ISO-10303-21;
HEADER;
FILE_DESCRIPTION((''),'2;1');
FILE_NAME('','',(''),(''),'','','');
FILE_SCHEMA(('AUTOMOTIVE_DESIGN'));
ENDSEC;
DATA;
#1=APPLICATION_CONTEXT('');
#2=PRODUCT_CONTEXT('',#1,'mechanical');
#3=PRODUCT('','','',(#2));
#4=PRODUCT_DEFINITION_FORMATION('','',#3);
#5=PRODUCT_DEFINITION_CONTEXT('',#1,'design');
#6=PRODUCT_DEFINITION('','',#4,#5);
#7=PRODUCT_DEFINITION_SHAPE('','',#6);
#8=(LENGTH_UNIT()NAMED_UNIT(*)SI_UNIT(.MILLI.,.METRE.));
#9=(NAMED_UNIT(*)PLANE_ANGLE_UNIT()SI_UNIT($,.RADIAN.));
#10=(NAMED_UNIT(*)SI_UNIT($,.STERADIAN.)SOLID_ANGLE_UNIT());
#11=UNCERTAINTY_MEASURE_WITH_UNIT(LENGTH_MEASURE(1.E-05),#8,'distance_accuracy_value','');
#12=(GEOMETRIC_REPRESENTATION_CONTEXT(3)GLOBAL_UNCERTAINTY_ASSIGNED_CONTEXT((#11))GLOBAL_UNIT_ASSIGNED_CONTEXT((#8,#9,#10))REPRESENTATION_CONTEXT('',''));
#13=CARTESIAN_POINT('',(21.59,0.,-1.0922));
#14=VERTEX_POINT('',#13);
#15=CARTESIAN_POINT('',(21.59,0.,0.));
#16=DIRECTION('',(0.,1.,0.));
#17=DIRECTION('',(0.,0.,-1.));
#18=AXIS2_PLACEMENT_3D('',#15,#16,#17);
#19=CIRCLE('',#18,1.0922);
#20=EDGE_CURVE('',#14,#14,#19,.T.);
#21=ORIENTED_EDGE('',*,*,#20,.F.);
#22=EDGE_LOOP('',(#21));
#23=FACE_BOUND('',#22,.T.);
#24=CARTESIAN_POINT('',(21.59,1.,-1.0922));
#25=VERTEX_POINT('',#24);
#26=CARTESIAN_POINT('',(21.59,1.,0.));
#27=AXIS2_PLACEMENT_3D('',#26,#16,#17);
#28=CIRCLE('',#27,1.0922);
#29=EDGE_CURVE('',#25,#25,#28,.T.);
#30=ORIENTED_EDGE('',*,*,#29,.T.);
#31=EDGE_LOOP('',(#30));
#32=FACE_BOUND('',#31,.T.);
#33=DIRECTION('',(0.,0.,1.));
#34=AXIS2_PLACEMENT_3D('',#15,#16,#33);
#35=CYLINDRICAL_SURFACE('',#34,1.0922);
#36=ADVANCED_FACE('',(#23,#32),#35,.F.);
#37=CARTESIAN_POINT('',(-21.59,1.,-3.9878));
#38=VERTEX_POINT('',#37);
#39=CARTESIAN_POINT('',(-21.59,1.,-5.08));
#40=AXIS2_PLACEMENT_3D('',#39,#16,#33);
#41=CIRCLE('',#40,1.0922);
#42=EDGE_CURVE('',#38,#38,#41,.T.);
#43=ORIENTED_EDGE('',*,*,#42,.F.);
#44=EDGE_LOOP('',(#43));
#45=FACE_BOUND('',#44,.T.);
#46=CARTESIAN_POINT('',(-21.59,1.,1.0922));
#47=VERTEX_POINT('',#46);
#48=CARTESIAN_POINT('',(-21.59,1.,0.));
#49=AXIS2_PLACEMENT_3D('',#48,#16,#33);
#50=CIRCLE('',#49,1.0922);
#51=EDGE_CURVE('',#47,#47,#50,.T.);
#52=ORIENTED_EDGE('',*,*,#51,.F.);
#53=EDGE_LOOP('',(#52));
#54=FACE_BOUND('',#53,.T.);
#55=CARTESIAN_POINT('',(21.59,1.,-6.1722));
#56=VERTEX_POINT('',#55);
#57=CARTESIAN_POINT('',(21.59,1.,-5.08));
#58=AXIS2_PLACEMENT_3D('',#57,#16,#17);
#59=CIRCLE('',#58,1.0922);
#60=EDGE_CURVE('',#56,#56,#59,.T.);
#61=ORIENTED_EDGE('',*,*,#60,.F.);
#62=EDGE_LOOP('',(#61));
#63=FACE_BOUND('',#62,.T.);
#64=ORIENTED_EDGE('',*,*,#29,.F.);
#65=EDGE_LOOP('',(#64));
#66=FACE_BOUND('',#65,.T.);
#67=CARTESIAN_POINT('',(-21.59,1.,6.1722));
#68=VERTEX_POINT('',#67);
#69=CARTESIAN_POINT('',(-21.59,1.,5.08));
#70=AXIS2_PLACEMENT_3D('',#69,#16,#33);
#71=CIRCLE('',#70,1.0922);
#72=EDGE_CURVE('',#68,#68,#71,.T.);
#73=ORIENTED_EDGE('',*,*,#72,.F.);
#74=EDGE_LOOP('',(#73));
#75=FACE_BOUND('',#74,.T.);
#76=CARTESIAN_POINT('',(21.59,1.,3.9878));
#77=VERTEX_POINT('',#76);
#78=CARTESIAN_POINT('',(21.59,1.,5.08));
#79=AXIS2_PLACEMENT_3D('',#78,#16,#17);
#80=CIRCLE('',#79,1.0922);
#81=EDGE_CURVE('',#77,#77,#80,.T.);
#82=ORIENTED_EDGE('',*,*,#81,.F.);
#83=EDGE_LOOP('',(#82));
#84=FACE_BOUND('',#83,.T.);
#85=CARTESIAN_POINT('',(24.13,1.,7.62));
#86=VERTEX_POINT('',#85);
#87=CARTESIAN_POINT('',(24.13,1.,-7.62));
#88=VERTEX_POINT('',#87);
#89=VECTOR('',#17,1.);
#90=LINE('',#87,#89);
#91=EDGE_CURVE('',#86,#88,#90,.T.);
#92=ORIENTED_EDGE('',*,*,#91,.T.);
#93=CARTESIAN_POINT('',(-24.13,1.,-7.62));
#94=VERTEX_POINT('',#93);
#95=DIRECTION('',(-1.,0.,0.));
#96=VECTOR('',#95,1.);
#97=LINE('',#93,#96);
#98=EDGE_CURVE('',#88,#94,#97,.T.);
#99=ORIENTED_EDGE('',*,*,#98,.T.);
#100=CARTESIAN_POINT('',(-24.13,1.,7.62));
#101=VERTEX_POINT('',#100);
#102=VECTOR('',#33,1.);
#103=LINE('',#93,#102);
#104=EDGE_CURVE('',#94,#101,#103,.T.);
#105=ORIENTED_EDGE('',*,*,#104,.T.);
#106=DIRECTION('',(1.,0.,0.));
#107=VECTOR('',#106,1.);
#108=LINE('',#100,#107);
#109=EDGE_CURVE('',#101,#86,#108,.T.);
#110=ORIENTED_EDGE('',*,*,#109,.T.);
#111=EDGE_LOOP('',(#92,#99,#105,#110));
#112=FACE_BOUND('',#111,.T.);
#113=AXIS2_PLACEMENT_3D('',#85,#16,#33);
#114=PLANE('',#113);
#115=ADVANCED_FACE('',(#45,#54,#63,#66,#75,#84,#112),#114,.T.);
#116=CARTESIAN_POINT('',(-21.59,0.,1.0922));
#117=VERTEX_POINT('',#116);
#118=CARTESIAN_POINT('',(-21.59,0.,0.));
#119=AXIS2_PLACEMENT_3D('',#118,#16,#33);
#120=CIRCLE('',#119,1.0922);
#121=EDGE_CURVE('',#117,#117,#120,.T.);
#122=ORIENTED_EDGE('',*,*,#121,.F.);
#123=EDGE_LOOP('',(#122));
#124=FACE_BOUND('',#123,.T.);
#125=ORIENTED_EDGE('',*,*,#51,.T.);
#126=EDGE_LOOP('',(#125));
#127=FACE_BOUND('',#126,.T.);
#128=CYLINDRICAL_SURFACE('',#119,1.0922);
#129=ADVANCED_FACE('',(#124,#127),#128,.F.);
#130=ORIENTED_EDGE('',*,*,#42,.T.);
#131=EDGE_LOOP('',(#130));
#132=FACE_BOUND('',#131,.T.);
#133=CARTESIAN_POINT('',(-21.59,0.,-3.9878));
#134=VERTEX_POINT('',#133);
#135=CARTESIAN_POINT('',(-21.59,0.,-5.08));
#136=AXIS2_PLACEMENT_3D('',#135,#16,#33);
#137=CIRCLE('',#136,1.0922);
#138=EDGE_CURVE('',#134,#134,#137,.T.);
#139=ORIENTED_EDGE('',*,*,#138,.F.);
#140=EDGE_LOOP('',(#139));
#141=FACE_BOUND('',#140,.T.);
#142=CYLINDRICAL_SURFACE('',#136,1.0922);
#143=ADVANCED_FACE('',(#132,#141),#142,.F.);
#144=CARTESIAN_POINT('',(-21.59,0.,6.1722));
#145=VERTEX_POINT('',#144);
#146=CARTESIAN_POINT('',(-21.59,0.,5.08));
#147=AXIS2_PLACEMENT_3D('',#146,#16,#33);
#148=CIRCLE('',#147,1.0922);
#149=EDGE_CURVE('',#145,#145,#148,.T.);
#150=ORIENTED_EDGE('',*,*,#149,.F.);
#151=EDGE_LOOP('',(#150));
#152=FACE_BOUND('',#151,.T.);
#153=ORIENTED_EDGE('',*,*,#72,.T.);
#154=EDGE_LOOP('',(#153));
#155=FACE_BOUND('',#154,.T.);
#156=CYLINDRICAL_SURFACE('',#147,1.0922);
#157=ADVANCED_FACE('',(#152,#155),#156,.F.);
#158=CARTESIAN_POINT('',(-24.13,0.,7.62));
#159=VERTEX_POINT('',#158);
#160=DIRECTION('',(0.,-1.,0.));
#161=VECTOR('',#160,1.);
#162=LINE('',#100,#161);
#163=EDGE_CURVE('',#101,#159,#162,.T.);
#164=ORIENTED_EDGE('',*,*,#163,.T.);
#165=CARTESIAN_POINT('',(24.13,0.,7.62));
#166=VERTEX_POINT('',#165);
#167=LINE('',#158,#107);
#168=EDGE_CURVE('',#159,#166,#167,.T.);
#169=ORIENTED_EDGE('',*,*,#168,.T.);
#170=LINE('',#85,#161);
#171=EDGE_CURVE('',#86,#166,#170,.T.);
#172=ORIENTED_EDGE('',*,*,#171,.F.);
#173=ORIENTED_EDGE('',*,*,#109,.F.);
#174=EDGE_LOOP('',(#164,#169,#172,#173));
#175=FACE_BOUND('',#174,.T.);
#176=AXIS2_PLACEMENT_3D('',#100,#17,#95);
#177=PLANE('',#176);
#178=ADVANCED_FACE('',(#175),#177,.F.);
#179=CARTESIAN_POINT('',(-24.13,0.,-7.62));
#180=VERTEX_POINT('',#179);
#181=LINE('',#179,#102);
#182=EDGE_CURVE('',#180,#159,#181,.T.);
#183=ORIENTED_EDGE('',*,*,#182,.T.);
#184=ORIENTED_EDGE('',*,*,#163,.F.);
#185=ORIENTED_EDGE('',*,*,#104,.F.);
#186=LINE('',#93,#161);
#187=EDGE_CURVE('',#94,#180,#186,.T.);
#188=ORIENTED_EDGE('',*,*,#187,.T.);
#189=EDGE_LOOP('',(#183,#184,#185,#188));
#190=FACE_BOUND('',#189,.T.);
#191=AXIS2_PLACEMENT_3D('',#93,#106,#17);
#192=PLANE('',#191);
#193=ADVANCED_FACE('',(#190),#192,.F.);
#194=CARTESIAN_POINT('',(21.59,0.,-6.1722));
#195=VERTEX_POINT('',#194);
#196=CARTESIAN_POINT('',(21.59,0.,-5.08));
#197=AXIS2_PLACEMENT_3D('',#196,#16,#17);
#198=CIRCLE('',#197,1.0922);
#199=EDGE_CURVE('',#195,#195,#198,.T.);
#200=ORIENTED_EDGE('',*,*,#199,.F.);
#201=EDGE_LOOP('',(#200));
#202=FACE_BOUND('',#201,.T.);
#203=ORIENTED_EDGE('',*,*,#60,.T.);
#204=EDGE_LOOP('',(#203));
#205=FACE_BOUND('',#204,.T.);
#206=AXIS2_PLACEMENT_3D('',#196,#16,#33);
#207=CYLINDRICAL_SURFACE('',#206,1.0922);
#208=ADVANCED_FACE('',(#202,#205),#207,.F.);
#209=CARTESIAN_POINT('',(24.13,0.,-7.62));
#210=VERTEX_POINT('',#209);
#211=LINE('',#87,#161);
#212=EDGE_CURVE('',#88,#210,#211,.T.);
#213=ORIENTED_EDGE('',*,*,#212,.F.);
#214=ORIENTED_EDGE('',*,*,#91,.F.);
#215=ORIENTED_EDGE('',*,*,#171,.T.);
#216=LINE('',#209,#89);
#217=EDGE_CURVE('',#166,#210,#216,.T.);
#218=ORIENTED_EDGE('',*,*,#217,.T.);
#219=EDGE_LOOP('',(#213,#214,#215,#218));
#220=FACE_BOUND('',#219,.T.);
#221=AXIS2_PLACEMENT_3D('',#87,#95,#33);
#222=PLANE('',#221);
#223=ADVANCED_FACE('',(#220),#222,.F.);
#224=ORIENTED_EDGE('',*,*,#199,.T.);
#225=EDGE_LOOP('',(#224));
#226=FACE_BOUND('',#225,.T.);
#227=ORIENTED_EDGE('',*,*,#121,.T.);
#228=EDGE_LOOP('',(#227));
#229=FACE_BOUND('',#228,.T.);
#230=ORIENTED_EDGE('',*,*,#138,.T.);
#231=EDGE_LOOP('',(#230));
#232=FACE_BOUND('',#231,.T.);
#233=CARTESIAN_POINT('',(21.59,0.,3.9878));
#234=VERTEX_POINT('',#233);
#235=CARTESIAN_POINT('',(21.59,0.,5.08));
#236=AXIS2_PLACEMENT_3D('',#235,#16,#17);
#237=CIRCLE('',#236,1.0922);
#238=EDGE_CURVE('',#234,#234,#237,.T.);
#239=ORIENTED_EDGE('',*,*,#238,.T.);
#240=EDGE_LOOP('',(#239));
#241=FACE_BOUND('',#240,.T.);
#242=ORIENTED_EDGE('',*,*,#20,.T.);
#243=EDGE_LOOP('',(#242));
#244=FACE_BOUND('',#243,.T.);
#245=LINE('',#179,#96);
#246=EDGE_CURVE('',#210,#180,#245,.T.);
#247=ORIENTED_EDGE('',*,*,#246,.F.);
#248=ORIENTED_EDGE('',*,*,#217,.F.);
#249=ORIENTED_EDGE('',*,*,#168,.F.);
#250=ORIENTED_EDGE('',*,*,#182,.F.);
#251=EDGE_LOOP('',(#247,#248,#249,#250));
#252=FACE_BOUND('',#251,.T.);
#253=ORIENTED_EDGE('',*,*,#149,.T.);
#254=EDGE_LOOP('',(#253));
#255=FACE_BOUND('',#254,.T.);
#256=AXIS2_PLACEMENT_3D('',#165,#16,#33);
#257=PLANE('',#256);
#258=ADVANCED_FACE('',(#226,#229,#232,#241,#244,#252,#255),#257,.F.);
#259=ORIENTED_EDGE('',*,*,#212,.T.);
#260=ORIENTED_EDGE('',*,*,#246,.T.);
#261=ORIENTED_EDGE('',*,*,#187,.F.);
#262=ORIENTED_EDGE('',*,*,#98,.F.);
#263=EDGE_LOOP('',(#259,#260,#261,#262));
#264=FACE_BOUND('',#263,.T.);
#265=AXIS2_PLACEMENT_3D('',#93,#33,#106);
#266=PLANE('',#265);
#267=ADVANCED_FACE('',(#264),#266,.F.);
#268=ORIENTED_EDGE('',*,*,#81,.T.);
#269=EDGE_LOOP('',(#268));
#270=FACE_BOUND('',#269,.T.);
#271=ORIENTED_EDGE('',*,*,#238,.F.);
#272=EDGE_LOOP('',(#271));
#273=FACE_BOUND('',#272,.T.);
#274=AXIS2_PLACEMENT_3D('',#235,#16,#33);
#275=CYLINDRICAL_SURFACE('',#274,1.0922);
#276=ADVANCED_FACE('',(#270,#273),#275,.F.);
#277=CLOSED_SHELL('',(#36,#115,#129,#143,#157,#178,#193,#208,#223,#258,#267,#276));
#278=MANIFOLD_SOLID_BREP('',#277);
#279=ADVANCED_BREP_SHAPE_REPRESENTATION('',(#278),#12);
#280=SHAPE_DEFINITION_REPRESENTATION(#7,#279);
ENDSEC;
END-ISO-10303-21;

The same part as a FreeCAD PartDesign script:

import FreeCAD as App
import Part
import Sketcher
Q = App.Units.Quantity

doc = App.newDocument("Part")
params = doc.addObject("Spreadsheet::Sheet", "Params")
for row, (alias, value) in enumerate([
    ("sketch1_width", "1.9 in"),
    ("sketch1_height", "0.6 in"),
    ("pad1_length", "1 mm"),
    ("sketch2_diameter", "0.086 in"),
    ("pocket1_length", "1 mm"),
], start=1):
    params.set(f"A{row}", alias)
    params.set(f"B{row}", "=" + value)
    params.setAlias(f"B{row}", alias)

body = doc.addObject("PartDesign::Body", "Body")

# Sketch on XZ plane
sketch1 = doc.addObject("Sketcher::SketchObject", "Sketch")
body.addObject(sketch1)
sketch1.AttachmentSupport = (doc.XZ_Plane, [""])
sketch1.MapMode = "FlatFace"
sketch1.addGeometry(Part.LineSegment(App.Vector(-24, -8, 0), App.Vector(-24, 8, 0)), False)
sketch1.addGeometry(Part.LineSegment(App.Vector(-24, 8, 0), App.Vector(24, 8, 0)), False)
sketch1.addGeometry(Part.LineSegment(App.Vector(24, 8, 0), App.Vector(24, -8, 0)), False)
sketch1.addGeometry(Part.LineSegment(App.Vector(24, -8, 0), App.Vector(-24, -8, 0)), False)
sketch1.addConstraint(Sketcher.Constraint("Coincident", 0, 2, 1, 1))
sketch1.addConstraint(Sketcher.Constraint("Coincident", 1, 2, 2, 1))
sketch1.addConstraint(Sketcher.Constraint("Coincident", 2, 2, 3, 1))
sketch1.addConstraint(Sketcher.Constraint("Coincident", 3, 2, 0, 1))
sketch1.addConstraint(Sketcher.Constraint("Vertical", 0))
sketch1.addConstraint(Sketcher.Constraint("Horizontal", 1))
sketch1.addConstraint(Sketcher.Constraint("Vertical", 2))
sketch1.addConstraint(Sketcher.Constraint("Horizontal", 3))
sketch1.addConstraint(Sketcher.Constraint("Symmetric", 0, 2, 2, 2, -1, 1))
sketch1.addConstraint(Sketcher.Constraint("DistanceX", 1, 1, 1, 2, Q("1.9 in")))
sketch1.addConstraint(Sketcher.Constraint("DistanceY", 0, 1, 0, 2, Q("0.6 in")))
sketch1.setExpression("Constraints[9]", "Params.sketch1_width")
sketch1.setExpression("Constraints[10]", "Params.sketch1_height")
pad1 = doc.addObject("PartDesign::Pad", "Pad")
body.addObject(pad1)
pad1.Profile = sketch1
pad1.setExpression("Length", "Params.pad1_length")
pad1.Reversed = True

# Sketch on XZ plane
sketch2 = doc.addObject("Sketcher::SketchObject", "Sketch001")
body.addObject(sketch2)
sketch2.AttachmentSupport = (doc.XZ_Plane, [""])
sketch2.MapMode = "FlatFace"
sketch2.AttachmentOffset = App.Placement(App.Vector(0, 0, -1), App.Rotation())
sketch2.addGeometry(Part.Circle(App.Vector(-21.6, -5.1, 0), App.Vector(0, 0, 1), 1.1), False)
sketch2.addGeometry(Part.Circle(App.Vector(-21.6, 0, 0), App.Vector(0, 0, 1), 1.1), False)
sketch2.addGeometry(Part.Circle(App.Vector(-21.6, 5.1, 0), App.Vector(0, 0, 1), 1.1), False)
sketch2.addGeometry(Part.Circle(App.Vector(21.6, 5.1, 0), App.Vector(0, 0, 1), 1.1), False)
sketch2.addGeometry(Part.Circle(App.Vector(21.6, 0, 0), App.Vector(0, 0, 1), 1.1), False)
sketch2.addGeometry(Part.Circle(App.Vector(21.6, -5.1, 0), App.Vector(0, 0, 1), 1.1), False)
sketch2.addConstraint(Sketcher.Constraint("Equal", 0, 1))
sketch2.addConstraint(Sketcher.Constraint("Equal", 1, 2))
sketch2.addConstraint(Sketcher.Constraint("Equal", 2, 3))
sketch2.addConstraint(Sketcher.Constraint("Equal", 3, 4))
sketch2.addConstraint(Sketcher.Constraint("Equal", 4, 5))
sketch2.addConstraint(Sketcher.Constraint("Symmetric", 0, 3, 3, 3, -1, 1))
sketch2.addConstraint(Sketcher.Constraint("Symmetric", 1, 3, 4, 3, -1, 1))
sketch2.addConstraint(Sketcher.Constraint("Symmetric", 2, 3, 5, 3, -1, 1))
sketch2.addConstraint(Sketcher.Constraint("Symmetric", 2, 3, 3, 3, -2))
sketch2.addConstraint(Sketcher.Constraint("PointOnObject", 1, 3, -1))
sketch2.addConstraint(Sketcher.Constraint("Vertical", 0, 3, 1, 3))
sketch2.addConstraint(Sketcher.Constraint("Diameter", 0, Q("0.086 in")))
sketch2.addConstraint(Sketcher.Constraint("DistanceY", 0, 3, -1, 1, Q("0.2 in")))
sketch2.addConstraint(Sketcher.Constraint("DistanceX", 2, 3, 3, 3, Q("1.7 in")))
sketch2.setExpression("Constraints[11]", "Params.sketch2_diameter")
pocket1 = doc.addObject("PartDesign::Pocket", "Pocket")
body.addObject(pocket1)
pocket1.Profile = sketch2
pocket1.setExpression("Length", "Params.pocket1_length")
pocket1.Reversed = True

doc.recompute()
